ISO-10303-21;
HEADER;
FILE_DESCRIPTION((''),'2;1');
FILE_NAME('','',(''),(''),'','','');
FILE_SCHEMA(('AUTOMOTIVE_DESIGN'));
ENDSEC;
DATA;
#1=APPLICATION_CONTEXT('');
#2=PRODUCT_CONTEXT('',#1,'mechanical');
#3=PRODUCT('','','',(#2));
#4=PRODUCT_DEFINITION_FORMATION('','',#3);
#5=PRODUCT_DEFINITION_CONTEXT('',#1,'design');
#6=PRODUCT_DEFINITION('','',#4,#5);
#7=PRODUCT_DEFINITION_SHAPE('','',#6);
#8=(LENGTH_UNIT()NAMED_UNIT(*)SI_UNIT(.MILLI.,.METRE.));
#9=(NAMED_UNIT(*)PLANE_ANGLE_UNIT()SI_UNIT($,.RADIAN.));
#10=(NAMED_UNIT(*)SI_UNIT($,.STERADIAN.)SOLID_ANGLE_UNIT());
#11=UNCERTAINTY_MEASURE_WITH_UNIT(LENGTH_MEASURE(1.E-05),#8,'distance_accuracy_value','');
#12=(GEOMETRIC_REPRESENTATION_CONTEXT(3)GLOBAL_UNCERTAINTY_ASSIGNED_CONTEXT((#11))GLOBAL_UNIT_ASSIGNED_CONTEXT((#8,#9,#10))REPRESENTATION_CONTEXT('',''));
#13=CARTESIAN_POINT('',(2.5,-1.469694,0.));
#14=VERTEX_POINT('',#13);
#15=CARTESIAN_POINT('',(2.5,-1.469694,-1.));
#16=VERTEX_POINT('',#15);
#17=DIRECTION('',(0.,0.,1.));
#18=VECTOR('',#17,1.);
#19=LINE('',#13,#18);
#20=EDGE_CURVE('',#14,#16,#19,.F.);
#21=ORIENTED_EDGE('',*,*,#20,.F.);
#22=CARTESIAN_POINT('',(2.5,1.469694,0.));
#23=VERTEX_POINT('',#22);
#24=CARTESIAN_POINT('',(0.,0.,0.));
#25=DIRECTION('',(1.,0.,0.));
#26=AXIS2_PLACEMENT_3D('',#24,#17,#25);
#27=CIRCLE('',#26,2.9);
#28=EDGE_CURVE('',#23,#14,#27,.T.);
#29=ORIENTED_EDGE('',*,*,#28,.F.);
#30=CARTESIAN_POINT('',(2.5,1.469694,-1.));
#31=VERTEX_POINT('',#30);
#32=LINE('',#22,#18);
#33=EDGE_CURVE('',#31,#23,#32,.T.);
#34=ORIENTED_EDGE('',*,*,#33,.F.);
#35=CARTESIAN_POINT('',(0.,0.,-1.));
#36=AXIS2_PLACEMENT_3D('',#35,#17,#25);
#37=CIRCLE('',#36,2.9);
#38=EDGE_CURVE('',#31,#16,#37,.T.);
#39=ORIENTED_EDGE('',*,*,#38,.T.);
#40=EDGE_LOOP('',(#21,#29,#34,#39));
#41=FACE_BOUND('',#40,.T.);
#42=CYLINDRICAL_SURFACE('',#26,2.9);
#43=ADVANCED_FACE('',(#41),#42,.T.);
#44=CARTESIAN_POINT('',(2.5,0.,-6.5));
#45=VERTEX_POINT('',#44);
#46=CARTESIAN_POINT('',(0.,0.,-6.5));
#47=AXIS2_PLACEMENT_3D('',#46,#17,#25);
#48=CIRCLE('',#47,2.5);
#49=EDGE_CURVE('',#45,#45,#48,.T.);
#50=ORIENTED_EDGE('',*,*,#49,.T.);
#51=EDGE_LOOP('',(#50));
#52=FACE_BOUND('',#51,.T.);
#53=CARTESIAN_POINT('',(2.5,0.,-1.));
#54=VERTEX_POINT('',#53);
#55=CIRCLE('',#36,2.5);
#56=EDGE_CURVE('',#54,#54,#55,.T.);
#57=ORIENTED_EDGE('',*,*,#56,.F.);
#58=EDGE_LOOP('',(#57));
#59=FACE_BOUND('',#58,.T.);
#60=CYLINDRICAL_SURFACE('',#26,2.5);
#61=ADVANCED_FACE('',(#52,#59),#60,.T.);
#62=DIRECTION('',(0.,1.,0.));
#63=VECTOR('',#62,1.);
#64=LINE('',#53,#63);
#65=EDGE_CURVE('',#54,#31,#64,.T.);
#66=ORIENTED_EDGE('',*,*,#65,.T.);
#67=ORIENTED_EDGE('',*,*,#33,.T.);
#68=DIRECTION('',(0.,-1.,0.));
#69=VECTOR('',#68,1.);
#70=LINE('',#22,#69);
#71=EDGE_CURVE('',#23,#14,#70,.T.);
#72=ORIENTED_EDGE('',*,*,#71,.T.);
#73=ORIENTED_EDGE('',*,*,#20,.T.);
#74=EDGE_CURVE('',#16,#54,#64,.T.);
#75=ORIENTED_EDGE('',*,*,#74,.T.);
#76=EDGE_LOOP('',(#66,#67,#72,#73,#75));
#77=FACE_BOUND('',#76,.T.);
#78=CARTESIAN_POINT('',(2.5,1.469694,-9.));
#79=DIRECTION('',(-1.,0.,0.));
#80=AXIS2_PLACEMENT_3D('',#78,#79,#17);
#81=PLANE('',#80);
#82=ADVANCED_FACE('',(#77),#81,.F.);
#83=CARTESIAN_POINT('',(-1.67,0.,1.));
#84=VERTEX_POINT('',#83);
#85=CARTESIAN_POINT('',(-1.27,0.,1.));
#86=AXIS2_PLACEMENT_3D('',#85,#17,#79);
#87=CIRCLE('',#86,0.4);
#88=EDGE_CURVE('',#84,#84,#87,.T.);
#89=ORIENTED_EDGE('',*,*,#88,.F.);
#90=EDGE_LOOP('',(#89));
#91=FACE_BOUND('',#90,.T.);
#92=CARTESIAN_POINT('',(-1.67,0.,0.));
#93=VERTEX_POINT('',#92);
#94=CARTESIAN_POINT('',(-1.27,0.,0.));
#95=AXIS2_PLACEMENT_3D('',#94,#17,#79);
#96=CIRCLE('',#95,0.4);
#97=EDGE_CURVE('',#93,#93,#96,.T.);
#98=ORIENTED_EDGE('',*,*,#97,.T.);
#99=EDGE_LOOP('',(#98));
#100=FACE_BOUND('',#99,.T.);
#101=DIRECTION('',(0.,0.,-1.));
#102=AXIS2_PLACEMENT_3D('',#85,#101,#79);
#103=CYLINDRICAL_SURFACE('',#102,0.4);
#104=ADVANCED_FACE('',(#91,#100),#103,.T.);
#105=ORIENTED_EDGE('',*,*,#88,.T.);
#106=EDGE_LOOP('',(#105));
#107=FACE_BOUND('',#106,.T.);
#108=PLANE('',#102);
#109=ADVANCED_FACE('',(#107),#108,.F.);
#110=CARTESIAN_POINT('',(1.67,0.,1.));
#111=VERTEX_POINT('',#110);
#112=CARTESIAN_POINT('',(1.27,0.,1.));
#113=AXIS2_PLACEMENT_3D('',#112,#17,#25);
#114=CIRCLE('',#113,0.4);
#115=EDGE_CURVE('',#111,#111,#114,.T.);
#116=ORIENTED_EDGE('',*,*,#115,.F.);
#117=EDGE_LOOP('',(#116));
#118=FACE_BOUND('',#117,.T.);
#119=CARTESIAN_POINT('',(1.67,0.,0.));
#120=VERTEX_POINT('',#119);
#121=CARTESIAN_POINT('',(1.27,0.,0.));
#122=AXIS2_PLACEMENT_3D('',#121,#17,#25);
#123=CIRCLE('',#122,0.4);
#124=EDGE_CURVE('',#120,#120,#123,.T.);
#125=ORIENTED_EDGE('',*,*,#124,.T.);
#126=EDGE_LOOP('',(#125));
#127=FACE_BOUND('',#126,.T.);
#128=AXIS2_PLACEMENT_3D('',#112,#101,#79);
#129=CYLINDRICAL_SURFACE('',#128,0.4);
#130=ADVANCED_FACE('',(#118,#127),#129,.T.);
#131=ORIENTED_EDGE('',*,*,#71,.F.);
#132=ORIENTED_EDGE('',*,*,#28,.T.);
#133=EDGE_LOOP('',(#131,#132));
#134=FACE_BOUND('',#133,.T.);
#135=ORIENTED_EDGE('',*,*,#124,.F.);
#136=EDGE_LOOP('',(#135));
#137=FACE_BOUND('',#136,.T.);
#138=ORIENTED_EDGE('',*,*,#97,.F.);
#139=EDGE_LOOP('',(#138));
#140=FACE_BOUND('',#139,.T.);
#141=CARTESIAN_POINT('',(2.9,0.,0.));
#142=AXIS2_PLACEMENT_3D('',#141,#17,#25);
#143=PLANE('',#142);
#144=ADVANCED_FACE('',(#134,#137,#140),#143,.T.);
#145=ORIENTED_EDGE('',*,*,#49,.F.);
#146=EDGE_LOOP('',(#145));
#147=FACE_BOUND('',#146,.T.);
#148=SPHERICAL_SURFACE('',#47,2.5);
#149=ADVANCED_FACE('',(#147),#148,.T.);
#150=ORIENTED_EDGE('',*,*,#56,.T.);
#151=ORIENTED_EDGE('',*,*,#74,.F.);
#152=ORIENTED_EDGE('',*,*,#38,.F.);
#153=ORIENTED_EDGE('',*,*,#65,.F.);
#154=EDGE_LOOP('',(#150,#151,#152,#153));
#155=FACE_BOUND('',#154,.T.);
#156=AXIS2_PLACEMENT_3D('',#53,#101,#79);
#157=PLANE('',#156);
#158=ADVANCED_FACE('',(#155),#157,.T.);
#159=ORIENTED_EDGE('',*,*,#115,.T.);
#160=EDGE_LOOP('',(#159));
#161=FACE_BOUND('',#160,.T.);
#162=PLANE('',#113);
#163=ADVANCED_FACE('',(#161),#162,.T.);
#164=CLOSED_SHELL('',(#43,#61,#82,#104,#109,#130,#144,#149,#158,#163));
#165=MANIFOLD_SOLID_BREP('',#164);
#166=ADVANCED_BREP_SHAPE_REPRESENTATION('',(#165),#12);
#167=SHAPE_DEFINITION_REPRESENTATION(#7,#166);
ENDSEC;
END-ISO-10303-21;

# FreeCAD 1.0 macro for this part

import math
import FreeCAD as App
import Part
import Sketcher
from FreeCAD import Vector
Q = App.Units.Quantity


def add_polygon(sketch, points):
    """Adds a closed chain of lines whose ends are joined by coincident constraints."""
    first, n = sketch.GeometryCount, len(points)
    for a, b in zip(points, points[1:] + points[:1]):
        sketch.addGeometry(Part.LineSegment(App.Vector(*a, 0), App.Vector(*b, 0)), False)
    for i in range(n):
        sketch.addConstraint(Sketcher.Constraint("Coincident", first + i, 2, first + (i + 1) % n, 1))

doc = App.newDocument("Part")
params = doc.addObject("Spreadsheet::Sheet", "Params")
for row, (alias, value) in enumerate([
    ("sketch1_radius", "2.5 mm"),
    ("sketch1_height", "9 mm"),
    ("sketch1_height2", "1 mm"),
    ("sketch1_width", "2.9 mm"),
    ("revolution_angle", "360 deg"),
    ("sketch2_width", "0.4 mm"),
    ("sketch3_diameter", "0.8 mm"),
    ("pad1_length", "1 mm"),
], start=1):
    params.set(f"A{row}", alias)
    params.set(f"B{row}", "=" + value)
    params.setAlias(f"B{row}", alias)

body = doc.addObject("PartDesign::Body", "Body")

# Sketch on XZ plane
sketch1 = body.newObject("Sketcher::SketchObject", "Sketch")
sketch1.AttachmentSupport = (doc.getObject("XZ_Plane"), [""])
sketch1.MapMode = "FlatFace"
sketch1.addGeometry(Part.LineSegment(Vector(0, -9, 0), Vector(0, 0, 0)), False)
sketch1.addGeometry(Part.LineSegment(Vector(0, 0, 0), Vector(2.9, 0, 0)), False)
sketch1.addGeometry(Part.LineSegment(Vector(2.9, 0, 0), Vector(2.9, -1, 0)), False)
sketch1.addGeometry(Part.LineSegment(Vector(2.9, -1, 0), Vector(2.5, -1, 0)), False)
sketch1.addGeometry(Part.LineSegment(Vector(2.5, -1, 0), Vector(2.5, -6.5, 0)), False)
sketch1.addGeometry(Part.ArcOfCircle(Part.Circle(Vector(0, -6.5, 0), Vector(0, 0, 1), 2.5), math.radians(-90), math.radians(0)), False)
sketch1.addConstraint(Sketcher.Constraint("Coincident", 0, 2, 1, 1))
sketch1.addConstraint(Sketcher.Constraint("Coincident", 1, 2, 2, 1))
sketch1.addConstraint(Sketcher.Constraint("Coincident", 2, 2, 3, 1))
sketch1.addConstraint(Sketcher.Constraint("Coincident", 3, 2, 4, 1))
sketch1.addConstraint(Sketcher.Constraint("Tangent", 4, 2, 5, 2))
sketch1.addConstraint(Sketcher.Constraint("Coincident", 5, 1, 0, 1))
sketch1.addConstraint(Sketcher.Constraint("Vertical", 0))
sketch1.addConstraint(Sketcher.Constraint("Horizontal", 1))
sketch1.addConstraint(Sketcher.Constraint("Vertical", 2))
sketch1.addConstraint(Sketcher.Constraint("Horizontal", 3))
sketch1.addConstraint(Sketcher.Constraint("Vertical", 4))
sketch1.addConstraint(Sketcher.Constraint("Coincident", 0, 2, -1, 1))
sketch1.addConstraint(Sketcher.Constraint("PointOnObject", 5, 3, -2))
sketch1.addConstraint(Sketcher.Constraint("Radius", 5, Q("2.5 mm")))
sketch1.addConstraint(Sketcher.Constraint("DistanceY", 0, 1, 0, 2, Q("9 mm")))
sketch1.addConstraint(Sketcher.Constraint("DistanceY", 2, 2, 2, 1, Q("1 mm")))
sketch1.addConstraint(Sketcher.Constraint("DistanceX", 1, 1, 1, 2, Q("2.9 mm")))
sketch1.setExpression("Constraints[13]", "Params.sketch1_radius")
sketch1.setExpression("Constraints[14]", "Params.sketch1_height")
sketch1.setExpression("Constraints[15]", "Params.sketch1_height2")
sketch1.setExpression("Constraints[16]", "Params.sketch1_width")
revolution = body.newObject("PartDesign::Revolution", "Revolution")
revolution.Profile = sketch1
revolution.ReferenceAxis = (sketch1, ["V_Axis"])
revolution.setExpression("Angle", "Params.revolution_angle")

# Sketch on XY plane
sketch2 = body.newObject("Sketcher::SketchObject", "Sketch001")
sketch2.AttachmentSupport = (doc.getObject("XY_Plane"), [""])
sketch2.MapMode = "FlatFace"
add_polygon(sketch2, [(2.5, 1.47), (2.5, -1.47), (2.9, -1.47), (2.9, 1.47)])  # lines 0-3
sketch2.addConstraint(Sketcher.Constraint("Vertical", 0))
sketch2.addConstraint(Sketcher.Constraint("Horizontal", 1))
sketch2.addConstraint(Sketcher.Constraint("Vertical", 2))
sketch2.addConstraint(Sketcher.Constraint("Horizontal", 3))
sketch2.addConstraint(Sketcher.Constraint("DistanceX", 1, 1, 1, 2, Q("0.4 mm")))
sketch2.addConstraint(Sketcher.Constraint("DistanceX", -1, 1, 0, 2, Q("2.5 mm")))
sketch2.addConstraint(Sketcher.Constraint("DistanceY", 0, 2, 0, 1, Q("2.939388 mm")))
sketch2.addConstraint(Sketcher.Constraint("DistanceY", 0, 2, -1, 1, Q("1.469694 mm")))
sketch2.setExpression("Constraints[8]", "Params.sketch2_width")
pocket1 = body.newObject("PartDesign::Pocket", "Pocket")
pocket1.Profile = sketch2
pocket1.Type = "ThroughAll"

# Sketch on XY plane
sketch3 = body.newObject("Sketcher::SketchObject", "Sketch002")
sketch3.AttachmentSupport = (doc.getObject("XY_Plane"), [""])
sketch3.MapMode = "FlatFace"
sketch3.addGeometry(Part.Circle(Vector(1.27, 0, 0), Vector(0, 0, 1), 0.4), False)
sketch3.addGeometry(Part.Circle(Vector(-1.27, 0, 0), Vector(0, 0, 1), 0.4), False)
sketch3.addConstraint(Sketcher.Constraint("Equal", 0, 1))
sketch3.addConstraint(Sketcher.Constraint("Symmetric", 0, 3, 1, 3, -1, 1))
sketch3.addConstraint(Sketcher.Constraint("PointOnObject", 0, 3, -1))
sketch3.addConstraint(Sketcher.Constraint("Diameter", 0, Q("0.8 mm")))
sketch3.addConstraint(Sketcher.Constraint("DistanceX", -1, 1, 0, 3, Q("1.27 mm")))
sketch3.setExpression("Constraints[3]", "Params.sketch3_diameter")
pad1 = body.newObject("PartDesign::Pad", "Pad")
pad1.Profile = sketch3
pad1.setExpression("Length", "Params.pad1_length")

doc.recompute()
